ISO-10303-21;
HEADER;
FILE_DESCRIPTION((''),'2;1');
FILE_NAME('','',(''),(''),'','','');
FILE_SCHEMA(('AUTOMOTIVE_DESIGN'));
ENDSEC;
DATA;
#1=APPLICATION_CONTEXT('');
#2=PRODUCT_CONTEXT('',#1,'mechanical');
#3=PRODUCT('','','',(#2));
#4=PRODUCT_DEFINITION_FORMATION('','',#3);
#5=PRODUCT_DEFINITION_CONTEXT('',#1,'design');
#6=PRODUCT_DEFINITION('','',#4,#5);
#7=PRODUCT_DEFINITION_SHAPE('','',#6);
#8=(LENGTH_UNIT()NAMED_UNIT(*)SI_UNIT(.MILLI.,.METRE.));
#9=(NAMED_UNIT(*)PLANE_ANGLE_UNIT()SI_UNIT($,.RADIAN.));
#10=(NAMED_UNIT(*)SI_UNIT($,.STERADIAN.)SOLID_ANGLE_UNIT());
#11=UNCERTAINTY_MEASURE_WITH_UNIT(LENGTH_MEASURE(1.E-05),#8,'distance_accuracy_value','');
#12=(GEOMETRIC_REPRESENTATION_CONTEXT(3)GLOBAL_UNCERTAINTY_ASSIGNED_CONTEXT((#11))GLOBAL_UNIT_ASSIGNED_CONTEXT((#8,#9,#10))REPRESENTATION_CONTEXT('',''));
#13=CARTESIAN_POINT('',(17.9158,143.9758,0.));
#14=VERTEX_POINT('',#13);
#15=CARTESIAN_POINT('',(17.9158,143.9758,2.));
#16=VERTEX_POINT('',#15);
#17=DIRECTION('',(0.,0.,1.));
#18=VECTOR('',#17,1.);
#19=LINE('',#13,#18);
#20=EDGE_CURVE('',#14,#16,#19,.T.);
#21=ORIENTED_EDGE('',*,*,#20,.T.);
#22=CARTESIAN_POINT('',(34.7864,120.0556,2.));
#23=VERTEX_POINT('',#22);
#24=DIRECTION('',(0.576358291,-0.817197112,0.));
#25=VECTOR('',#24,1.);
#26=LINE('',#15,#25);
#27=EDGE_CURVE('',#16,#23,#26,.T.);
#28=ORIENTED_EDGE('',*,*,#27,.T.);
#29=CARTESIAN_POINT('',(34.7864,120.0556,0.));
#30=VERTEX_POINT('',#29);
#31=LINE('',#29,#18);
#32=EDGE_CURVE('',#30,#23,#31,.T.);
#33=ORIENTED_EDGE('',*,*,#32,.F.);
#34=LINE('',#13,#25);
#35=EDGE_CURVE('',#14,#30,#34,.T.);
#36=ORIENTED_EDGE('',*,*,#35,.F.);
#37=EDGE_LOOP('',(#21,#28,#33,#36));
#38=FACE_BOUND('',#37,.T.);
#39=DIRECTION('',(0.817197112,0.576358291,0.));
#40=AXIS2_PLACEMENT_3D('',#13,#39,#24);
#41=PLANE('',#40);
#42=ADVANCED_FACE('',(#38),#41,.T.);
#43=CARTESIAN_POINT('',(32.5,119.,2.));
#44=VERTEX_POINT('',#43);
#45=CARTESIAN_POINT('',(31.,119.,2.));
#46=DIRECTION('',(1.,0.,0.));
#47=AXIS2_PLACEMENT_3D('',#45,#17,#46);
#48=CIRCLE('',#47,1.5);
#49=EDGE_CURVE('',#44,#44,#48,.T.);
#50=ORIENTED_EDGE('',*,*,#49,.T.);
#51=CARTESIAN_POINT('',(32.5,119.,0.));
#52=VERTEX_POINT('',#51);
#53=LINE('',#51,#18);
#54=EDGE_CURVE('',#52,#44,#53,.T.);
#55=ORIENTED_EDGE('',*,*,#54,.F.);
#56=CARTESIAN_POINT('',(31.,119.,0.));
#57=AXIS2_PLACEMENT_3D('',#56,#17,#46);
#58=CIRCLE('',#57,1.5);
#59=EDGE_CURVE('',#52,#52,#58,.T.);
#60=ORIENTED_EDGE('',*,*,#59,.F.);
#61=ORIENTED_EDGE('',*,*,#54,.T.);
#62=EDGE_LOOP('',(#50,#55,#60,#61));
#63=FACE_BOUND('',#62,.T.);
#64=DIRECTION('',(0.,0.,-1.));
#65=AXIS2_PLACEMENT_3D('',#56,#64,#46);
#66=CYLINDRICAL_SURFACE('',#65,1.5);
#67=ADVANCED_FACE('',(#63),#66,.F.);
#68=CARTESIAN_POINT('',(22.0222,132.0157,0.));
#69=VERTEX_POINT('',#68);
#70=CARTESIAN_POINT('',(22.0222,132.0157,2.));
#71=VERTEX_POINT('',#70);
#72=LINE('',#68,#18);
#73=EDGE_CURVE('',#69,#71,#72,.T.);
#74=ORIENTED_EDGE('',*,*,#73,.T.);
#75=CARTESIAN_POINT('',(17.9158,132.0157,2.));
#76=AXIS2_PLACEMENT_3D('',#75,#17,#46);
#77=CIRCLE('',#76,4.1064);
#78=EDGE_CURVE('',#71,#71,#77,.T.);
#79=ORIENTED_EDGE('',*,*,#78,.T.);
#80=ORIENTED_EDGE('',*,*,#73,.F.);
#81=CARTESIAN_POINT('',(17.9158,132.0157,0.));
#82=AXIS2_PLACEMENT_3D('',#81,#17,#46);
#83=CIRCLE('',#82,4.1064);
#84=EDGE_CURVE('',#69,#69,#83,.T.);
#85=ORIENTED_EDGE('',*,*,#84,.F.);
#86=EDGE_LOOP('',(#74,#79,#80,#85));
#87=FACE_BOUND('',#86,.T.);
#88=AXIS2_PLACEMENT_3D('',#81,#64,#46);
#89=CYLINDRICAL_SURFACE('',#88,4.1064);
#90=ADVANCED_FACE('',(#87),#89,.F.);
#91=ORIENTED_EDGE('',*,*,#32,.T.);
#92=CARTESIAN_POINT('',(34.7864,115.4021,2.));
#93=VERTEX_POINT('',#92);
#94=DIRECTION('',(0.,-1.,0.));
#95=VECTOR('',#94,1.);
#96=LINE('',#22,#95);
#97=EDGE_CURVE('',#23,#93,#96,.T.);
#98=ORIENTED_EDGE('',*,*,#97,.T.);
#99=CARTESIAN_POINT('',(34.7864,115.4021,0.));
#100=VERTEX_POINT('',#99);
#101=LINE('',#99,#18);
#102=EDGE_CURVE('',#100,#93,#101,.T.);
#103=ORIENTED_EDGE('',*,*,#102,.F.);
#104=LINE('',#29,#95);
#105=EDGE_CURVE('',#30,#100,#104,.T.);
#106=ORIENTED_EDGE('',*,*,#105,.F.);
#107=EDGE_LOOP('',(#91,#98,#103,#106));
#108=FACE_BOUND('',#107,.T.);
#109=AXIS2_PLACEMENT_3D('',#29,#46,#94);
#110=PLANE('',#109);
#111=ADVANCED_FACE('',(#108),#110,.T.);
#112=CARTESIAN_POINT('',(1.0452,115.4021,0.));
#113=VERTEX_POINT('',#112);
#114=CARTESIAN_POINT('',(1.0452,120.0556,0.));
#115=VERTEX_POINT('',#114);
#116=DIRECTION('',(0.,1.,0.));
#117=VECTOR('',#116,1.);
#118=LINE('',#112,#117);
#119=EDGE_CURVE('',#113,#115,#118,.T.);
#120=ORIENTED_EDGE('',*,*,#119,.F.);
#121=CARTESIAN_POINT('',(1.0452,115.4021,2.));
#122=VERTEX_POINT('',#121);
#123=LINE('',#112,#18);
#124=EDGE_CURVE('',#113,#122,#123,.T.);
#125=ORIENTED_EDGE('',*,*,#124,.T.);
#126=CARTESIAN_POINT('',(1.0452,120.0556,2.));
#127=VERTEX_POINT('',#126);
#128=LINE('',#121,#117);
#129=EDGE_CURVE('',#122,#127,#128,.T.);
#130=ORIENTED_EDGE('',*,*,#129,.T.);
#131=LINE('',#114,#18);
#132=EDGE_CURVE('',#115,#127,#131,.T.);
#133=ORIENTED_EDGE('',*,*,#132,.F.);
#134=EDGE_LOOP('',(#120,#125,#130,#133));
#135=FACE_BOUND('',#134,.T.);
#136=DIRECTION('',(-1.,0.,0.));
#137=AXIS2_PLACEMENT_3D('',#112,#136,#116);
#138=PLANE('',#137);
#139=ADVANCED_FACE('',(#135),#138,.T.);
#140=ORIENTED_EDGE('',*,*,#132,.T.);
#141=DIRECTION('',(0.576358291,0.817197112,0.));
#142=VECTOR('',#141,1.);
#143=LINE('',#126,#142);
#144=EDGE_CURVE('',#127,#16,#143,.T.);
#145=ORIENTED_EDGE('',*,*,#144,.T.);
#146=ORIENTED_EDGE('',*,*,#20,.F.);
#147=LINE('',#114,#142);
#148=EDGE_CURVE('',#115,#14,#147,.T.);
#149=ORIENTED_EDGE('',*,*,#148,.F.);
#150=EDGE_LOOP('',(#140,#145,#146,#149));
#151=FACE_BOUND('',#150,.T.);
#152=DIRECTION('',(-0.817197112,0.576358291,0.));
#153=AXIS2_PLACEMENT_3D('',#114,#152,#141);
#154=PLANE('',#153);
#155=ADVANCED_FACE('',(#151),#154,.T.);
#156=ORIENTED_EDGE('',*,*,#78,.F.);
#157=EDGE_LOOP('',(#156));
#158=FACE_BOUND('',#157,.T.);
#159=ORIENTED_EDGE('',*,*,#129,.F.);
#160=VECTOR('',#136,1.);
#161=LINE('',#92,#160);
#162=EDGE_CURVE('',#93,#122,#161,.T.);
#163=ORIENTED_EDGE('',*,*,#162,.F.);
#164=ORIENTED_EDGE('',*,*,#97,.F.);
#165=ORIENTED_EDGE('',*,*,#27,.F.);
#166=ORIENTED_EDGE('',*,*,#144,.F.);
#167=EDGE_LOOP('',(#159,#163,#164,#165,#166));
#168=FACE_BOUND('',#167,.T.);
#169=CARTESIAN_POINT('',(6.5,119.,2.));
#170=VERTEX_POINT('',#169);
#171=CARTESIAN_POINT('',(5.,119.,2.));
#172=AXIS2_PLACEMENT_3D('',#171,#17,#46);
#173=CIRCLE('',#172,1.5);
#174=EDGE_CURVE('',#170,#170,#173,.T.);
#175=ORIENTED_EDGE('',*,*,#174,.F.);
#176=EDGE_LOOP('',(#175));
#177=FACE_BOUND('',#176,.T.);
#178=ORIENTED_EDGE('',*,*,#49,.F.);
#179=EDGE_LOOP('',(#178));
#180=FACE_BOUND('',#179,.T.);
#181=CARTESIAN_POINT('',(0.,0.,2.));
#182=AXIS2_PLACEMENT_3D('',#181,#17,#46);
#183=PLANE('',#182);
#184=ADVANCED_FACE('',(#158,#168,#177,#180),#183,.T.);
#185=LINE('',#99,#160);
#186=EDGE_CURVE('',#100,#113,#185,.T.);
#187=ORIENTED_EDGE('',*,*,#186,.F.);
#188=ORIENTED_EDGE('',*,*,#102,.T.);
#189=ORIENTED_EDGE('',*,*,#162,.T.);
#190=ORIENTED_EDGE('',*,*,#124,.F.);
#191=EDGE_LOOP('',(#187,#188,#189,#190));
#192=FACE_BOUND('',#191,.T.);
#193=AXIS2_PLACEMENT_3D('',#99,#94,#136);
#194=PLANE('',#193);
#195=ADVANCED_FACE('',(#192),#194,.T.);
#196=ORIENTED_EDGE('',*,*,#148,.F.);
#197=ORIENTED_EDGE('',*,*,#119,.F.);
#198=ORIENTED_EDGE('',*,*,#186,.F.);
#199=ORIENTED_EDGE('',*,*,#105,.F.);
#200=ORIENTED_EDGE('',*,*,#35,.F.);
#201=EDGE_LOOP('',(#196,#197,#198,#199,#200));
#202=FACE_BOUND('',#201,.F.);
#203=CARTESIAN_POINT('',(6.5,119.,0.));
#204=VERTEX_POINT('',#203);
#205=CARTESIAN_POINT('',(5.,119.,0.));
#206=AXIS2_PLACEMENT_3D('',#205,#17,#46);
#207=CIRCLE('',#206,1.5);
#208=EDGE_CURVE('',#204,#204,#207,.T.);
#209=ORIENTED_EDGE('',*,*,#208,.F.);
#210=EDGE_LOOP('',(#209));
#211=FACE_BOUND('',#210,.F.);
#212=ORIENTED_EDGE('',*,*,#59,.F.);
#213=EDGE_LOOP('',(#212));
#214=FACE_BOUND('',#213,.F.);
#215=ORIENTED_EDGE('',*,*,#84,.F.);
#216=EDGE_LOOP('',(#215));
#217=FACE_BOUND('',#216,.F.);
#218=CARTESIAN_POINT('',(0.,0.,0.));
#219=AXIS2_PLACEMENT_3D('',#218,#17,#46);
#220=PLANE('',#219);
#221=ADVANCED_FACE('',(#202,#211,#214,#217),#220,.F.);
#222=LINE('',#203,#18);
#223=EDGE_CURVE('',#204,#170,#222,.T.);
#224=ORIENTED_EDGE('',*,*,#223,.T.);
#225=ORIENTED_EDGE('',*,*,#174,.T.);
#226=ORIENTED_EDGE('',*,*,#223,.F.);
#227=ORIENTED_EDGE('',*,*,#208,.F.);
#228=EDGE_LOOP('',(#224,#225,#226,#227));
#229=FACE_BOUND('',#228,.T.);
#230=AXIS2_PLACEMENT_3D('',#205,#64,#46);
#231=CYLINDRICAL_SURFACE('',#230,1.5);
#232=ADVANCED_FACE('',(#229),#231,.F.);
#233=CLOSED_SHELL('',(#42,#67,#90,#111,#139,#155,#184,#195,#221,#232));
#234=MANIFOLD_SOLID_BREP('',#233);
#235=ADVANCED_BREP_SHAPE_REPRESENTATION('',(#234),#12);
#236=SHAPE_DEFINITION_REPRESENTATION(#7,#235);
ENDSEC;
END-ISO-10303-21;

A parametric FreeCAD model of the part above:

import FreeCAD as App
import Part
import Sketcher
from FreeCAD import Vector


def add_polygon(sketch, points):
    """Adds a closed chain of lines whose ends are joined by coincident constraints."""
    first, n = sketch.GeometryCount, len(points)
    for a, b in zip(points, points[1:] + points[:1]):
        sketch.addGeometry(Part.LineSegment(App.Vector(*a, 0), App.Vector(*b, 0)), False)
    for i in range(n):
        sketch.addConstraint(Sketcher.Constraint("Coincident", first + i, 2, first + (i + 1) % n, 1))

doc = App.newDocument("Part")
body = doc.addObject("PartDesign::Body", "Body")

sketch1 = doc.addObject("Sketcher::SketchObject", "Sketch")
body.addObject(sketch1)
sketch1.AttachmentSupport = (doc.XY_Plane, [""])
sketch1.MapMode = "FlatFace"
add_polygon(sketch1, [(1, 120.1), (1, 115.4), (34.8, 115.4), (34.8, 120.1), (17.9, 144)])
sketch1.addGeometry(Part.Circle(Vector(5, 119, 0), Vector(0, 0, 1), 1.5), False)
sketch1.addGeometry(Part.Circle(Vector(31, 119, 0), Vector(0, 0, 1), 1.5), False)
sketch1.addGeometry(Part.Circle(Vector(17.9, 132, 0), Vector(0, 0, 1), 4.1), False)
sketch1.addConstraint([
    Sketcher.Constraint("Vertical", 0),
    Sketcher.Constraint("Horizontal", 1),
    Sketcher.Constraint("Vertical", 2),
    Sketcher.Constraint("Equal", 5, 6),
    Sketcher.Constraint("Horizontal", 5, 3, 6, 3),
    Sketcher.Constraint("Horizontal", 2, 2, 4, 2),
    Sketcher.Constraint("Vertical", 7, 3, 3, 2),
    Sketcher.Constraint("Equal", 3, 4),
    Sketcher.Constraint("Diameter", 5, 3.0),
    Sketcher.Constraint("DistanceX", -1, 1, 5, 3, 5.0),
    Sketcher.Constraint("DistanceY", -1, 1, 5, 3, 119.0),
    Sketcher.Constraint("DistanceX", -1, 1, 6, 3, 31.0),
    Sketcher.Constraint("Diameter", 7, 8.2128),
    Sketcher.Constraint("DistanceY", 2, 2, 7, 3, 11.96),
    Sketcher.Constraint("DistanceY", 7, 3, 3, 2, 11.96),
    Sketcher.Constraint("Distance", 3, 29.271),
    Sketcher.Constraint("DistanceY", 0, 2, 0, 1, 4.6535),
    Sketcher.Constraint("DistanceY", -1, 1, 0, 2, 115.402),
    Sketcher.Constraint("DistanceX", -1, 1, 7, 3, 17.9158),
])
pad1 = doc.addObject("PartDesign::Pad", "Pad")
body.addObject(pad1)
pad1.Profile = sketch1
pad1.Length = 2

doc.recompute()
